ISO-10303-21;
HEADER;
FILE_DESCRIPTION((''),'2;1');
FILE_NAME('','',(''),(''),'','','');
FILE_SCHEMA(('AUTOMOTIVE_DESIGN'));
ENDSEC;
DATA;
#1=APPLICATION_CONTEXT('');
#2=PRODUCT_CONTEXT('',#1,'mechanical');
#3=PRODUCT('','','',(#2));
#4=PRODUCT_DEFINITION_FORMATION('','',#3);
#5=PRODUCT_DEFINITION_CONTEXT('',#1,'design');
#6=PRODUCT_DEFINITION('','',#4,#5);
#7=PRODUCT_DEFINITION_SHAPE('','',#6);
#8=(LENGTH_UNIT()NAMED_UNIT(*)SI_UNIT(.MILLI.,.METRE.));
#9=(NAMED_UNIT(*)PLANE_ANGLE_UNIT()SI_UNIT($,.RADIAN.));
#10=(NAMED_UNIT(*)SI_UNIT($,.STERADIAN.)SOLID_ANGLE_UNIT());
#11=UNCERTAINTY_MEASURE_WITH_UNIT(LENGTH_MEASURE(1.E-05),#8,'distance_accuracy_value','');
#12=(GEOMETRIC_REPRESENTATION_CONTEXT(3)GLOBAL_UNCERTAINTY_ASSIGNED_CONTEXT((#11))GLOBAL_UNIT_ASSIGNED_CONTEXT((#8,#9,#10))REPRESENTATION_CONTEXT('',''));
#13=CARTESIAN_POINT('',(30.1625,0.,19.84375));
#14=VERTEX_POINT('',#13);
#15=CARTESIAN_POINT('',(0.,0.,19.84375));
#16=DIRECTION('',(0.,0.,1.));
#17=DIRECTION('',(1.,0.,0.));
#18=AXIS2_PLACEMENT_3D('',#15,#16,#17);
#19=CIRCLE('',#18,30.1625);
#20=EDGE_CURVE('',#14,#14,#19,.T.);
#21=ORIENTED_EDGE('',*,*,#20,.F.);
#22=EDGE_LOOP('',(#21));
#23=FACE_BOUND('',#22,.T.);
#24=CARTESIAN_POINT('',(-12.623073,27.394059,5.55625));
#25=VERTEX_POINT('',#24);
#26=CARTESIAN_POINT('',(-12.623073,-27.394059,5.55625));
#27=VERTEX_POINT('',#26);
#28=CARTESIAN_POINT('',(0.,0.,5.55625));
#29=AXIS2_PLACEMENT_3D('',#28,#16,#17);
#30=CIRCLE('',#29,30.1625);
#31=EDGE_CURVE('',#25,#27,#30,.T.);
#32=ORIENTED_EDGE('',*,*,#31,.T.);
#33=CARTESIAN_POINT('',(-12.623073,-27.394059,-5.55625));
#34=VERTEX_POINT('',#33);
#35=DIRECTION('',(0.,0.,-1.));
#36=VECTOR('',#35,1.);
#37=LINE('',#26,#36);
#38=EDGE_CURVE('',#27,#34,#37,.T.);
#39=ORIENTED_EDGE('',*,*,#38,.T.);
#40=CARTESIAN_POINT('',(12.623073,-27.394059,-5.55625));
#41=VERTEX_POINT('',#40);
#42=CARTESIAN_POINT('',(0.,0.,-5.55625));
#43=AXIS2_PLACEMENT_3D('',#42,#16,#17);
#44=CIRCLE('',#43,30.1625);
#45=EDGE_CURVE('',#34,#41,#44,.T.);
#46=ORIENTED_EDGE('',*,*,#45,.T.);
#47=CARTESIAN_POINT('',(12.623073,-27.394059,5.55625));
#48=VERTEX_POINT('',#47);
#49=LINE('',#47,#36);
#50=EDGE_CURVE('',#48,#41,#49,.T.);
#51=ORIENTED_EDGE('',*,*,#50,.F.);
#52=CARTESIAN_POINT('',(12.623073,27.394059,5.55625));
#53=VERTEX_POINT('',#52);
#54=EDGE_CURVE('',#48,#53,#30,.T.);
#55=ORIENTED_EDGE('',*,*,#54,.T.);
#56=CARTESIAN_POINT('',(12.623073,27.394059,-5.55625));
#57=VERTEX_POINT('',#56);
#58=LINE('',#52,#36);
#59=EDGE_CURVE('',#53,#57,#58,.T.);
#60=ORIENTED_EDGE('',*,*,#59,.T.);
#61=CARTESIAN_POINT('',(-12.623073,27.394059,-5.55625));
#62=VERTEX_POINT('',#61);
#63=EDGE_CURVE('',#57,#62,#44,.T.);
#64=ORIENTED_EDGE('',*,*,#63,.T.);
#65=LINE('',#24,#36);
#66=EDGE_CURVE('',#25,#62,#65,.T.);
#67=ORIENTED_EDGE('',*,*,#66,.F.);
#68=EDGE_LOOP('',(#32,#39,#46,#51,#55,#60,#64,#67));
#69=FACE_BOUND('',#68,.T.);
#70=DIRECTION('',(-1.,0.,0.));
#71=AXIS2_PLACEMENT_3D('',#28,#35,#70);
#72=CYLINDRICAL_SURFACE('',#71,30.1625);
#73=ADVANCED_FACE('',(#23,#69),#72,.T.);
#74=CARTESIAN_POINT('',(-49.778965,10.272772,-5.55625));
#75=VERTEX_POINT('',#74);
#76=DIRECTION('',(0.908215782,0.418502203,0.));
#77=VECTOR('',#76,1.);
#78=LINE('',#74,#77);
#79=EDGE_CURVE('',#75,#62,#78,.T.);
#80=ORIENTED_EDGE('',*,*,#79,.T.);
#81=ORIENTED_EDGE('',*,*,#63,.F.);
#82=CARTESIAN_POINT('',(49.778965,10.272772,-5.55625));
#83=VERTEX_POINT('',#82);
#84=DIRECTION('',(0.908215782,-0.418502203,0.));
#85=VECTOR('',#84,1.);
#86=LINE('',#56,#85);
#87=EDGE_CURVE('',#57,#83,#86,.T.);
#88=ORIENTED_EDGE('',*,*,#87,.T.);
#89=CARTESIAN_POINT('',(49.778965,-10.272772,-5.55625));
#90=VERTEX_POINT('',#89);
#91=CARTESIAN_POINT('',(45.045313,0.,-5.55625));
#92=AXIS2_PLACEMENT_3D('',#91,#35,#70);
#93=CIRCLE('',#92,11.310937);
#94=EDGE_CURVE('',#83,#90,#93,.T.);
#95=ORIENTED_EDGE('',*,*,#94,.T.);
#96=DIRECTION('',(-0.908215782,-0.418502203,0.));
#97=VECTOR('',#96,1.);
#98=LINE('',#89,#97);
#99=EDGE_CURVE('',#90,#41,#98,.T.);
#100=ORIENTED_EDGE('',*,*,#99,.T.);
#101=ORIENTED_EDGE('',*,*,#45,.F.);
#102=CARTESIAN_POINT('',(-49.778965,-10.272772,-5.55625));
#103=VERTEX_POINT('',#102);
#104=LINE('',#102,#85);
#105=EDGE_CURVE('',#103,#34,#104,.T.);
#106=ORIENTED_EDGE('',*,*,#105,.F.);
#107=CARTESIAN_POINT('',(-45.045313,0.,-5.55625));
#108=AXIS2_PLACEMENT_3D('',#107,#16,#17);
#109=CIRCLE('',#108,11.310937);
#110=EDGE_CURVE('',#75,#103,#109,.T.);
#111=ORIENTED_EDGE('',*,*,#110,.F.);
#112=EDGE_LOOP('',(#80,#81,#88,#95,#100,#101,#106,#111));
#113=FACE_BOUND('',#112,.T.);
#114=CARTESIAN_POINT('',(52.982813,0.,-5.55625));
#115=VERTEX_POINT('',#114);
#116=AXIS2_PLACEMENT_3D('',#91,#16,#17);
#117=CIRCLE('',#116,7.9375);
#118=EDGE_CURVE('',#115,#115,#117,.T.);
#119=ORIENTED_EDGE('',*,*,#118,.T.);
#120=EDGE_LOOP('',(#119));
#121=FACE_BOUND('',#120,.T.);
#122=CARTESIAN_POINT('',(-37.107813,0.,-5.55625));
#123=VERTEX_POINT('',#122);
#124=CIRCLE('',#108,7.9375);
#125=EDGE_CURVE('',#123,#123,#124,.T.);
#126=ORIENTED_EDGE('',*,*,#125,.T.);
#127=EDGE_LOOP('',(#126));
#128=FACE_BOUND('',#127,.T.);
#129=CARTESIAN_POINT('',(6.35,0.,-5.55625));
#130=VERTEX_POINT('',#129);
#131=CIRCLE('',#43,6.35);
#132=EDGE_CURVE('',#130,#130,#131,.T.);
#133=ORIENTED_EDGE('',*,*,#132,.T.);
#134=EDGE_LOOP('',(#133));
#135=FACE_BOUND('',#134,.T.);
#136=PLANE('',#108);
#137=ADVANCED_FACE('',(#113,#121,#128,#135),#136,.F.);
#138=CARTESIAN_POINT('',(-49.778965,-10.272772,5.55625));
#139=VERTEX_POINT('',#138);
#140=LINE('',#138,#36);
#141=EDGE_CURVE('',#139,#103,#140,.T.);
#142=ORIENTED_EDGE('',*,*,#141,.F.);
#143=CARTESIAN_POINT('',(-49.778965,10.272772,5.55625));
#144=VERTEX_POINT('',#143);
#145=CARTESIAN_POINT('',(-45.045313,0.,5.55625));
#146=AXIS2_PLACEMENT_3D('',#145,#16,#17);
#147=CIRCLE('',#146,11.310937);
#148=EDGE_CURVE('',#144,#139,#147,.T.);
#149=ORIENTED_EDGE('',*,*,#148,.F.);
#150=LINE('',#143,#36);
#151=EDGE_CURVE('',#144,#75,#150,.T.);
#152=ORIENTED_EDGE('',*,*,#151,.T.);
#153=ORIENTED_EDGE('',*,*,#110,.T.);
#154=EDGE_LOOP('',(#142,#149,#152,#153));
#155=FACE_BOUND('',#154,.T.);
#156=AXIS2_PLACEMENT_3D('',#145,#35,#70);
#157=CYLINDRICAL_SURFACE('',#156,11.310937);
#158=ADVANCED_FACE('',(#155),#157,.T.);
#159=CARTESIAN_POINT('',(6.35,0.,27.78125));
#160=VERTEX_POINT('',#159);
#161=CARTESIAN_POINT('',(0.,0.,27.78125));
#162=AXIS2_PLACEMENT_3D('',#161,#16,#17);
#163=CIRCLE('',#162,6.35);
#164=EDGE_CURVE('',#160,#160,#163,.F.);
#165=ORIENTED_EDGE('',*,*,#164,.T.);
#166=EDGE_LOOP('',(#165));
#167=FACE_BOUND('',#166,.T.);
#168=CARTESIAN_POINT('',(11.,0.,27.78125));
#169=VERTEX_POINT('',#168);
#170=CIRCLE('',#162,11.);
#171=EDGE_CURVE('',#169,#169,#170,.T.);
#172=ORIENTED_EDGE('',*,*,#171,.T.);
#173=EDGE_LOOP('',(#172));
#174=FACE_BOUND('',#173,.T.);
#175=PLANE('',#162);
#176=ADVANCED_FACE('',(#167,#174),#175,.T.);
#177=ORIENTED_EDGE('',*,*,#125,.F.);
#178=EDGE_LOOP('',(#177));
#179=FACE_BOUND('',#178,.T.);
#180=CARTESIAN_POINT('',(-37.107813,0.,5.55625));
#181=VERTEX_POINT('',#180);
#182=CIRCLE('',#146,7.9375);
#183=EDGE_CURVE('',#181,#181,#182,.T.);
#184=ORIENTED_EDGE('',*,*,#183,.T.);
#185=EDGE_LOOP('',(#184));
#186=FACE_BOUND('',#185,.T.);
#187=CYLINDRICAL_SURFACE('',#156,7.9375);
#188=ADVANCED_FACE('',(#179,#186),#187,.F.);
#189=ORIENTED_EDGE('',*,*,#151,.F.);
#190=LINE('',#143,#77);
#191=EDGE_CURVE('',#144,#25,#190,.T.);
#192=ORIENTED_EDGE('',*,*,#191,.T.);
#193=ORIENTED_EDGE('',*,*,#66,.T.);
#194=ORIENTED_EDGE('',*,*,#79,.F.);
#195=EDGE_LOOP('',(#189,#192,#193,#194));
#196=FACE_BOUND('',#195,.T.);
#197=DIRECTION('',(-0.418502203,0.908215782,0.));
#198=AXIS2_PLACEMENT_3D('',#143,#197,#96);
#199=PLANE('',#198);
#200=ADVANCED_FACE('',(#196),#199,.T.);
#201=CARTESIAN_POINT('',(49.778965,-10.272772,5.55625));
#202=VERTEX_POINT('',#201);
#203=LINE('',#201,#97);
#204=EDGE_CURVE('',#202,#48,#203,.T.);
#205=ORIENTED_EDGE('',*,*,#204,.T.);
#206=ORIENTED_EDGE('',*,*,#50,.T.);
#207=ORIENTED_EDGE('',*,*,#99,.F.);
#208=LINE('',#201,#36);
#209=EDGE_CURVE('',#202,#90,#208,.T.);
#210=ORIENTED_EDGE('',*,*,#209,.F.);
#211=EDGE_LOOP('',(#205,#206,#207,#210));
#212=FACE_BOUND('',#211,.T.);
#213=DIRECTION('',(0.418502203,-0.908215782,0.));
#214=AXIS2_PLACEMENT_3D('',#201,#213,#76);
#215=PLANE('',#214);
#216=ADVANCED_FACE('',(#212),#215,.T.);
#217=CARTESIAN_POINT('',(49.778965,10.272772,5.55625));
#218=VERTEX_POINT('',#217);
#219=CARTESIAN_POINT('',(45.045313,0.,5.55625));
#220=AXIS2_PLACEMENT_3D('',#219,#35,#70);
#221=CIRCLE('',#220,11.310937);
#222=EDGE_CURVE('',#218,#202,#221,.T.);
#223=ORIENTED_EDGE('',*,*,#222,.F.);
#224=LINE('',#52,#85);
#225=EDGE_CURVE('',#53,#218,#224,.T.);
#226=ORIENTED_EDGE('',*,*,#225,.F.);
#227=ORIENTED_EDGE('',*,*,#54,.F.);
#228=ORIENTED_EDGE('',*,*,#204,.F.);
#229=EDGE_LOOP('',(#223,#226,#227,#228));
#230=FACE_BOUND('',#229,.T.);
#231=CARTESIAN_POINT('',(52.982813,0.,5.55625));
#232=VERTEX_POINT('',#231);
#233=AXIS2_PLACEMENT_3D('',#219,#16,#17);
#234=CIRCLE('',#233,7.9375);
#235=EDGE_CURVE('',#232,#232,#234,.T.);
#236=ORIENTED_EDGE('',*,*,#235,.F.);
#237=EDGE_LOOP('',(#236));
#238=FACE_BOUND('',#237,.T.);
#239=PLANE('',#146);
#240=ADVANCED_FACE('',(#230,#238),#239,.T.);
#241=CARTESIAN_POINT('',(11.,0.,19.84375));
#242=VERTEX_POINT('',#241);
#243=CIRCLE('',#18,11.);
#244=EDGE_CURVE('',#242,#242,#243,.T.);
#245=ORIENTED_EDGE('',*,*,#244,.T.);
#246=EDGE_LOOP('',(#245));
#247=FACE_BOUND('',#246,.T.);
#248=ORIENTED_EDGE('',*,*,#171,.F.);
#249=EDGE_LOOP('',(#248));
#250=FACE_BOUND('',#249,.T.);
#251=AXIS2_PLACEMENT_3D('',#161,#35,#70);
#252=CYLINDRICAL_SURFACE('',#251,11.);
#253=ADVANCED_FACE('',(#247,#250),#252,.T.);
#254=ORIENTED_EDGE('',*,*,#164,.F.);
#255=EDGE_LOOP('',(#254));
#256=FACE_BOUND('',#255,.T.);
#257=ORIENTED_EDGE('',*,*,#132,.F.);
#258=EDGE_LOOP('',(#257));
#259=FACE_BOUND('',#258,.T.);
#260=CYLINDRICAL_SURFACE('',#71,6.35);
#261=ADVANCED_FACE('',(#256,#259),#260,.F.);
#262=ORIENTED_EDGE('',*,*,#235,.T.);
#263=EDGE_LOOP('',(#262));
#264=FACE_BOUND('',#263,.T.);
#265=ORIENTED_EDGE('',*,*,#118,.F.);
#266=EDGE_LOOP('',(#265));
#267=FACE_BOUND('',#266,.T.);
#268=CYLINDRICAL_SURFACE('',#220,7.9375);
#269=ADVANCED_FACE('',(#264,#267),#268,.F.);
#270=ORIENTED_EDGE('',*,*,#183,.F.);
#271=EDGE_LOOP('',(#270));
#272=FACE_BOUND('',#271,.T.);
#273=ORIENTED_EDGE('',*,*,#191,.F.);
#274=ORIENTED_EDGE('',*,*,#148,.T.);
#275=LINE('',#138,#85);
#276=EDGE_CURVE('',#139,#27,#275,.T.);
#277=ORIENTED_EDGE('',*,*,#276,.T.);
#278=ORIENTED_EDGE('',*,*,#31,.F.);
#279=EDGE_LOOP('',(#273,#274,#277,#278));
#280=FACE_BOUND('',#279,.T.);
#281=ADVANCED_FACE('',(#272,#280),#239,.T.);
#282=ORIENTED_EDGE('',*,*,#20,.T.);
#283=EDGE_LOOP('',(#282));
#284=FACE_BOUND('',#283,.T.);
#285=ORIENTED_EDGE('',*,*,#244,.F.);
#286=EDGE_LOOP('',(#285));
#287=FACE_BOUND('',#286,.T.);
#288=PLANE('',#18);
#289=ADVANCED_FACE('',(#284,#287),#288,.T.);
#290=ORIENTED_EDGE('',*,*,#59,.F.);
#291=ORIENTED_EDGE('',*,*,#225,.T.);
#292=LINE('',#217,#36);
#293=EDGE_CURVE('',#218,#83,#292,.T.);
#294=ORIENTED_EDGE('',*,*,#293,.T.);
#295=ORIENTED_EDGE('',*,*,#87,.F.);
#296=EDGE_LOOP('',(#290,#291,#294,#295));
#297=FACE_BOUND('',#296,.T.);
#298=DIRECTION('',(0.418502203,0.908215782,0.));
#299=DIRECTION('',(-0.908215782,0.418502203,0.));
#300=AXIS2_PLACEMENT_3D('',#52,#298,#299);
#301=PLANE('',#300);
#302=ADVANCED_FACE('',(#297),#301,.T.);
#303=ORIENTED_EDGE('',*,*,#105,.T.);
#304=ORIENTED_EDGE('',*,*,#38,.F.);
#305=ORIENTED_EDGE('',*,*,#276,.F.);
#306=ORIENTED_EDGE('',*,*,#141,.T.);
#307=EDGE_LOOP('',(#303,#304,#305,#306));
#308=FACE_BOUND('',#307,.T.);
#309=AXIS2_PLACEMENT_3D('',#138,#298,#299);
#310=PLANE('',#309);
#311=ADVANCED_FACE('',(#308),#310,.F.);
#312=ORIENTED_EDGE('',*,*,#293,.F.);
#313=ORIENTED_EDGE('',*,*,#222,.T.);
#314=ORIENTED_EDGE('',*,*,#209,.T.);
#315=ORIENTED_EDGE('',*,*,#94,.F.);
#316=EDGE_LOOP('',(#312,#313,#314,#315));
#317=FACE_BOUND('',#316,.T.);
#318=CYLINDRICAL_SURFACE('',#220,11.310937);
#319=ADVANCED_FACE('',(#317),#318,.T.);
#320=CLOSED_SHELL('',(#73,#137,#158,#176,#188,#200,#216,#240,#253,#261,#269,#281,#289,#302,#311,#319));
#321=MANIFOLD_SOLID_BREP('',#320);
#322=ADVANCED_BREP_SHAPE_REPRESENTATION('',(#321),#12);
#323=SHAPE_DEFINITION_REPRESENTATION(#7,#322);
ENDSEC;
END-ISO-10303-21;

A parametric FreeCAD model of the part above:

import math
import FreeCAD as App
import Part
import Sketcher
Q = App.Units.Quantity

doc = App.newDocument("Part")
body = doc.addObject("PartDesign::Body", "Body")

sketch1 = body.newObject("Sketcher::SketchObject", "Sketch")
sketch1.AttachmentSupport = (doc.getObject("XY_Plane"), [""])
sketch1.MapMode = "FlatFace"
sketch1.addGeometry(Part.LineSegment(App.Vector(-13, 27, 0), App.Vector(-50, 10, 0)), False)
sketch1.addGeometry(Part.ArcOfCircle(Part.Circle(App.Vector(-45, 0, 0), App.Vector(0, 0, 1), 11), math.radians(115), math.radians(245)), False)
sketch1.addGeometry(Part.LineSegment(App.Vector(-50, -10, 0), App.Vector(-13, -27, 0)), False)
sketch1.addGeometry(Part.ArcOfCircle(Part.Circle(App.Vector(0, 0, 0), App.Vector(0, 0, 1), 30), math.radians(-115), math.radians(-65)), False)
sketch1.addGeometry(Part.LineSegment(App.Vector(13, -27, 0), App.Vector(50, -10, 0)), False)
sketch1.addGeometry(Part.ArcOfCircle(Part.Circle(App.Vector(45, 0, 0), App.Vector(0, 0, 1), 11), math.radians(-65), math.radians(65)), False)
sketch1.addGeometry(Part.LineSegment(App.Vector(50, 10, 0), App.Vector(13, 27, 0)), False)
sketch1.addGeometry(Part.ArcOfCircle(Part.Circle(App.Vector(0, 0, 0), App.Vector(0, 0, 1), 30), math.radians(65), math.radians(115)), False)
sketch1.addGeometry(Part.Circle(App.Vector(45, 0, 0), App.Vector(0, 0, 1), 8), False)
sketch1.addGeometry(Part.Circle(App.Vector(0, 0, 0), App.Vector(0, 0, 1), 6), False)
sketch1.addGeometry(Part.Circle(App.Vector(-45, 0, 0), App.Vector(0, 0, 1), 8), False)
sketch1.addConstraint(Sketcher.Constraint("Tangent", 0, 2, 1, 1))
sketch1.addConstraint(Sketcher.Constraint("Tangent", 1, 2, 2, 1))
sketch1.addConstraint(Sketcher.Constraint("Tangent", 2, 2, 3, 1))
sketch1.addConstraint(Sketcher.Constraint("Tangent", 3, 2, 4, 1))
sketch1.addConstraint(Sketcher.Constraint("Tangent", 4, 2, 5, 1))
sketch1.addConstraint(Sketcher.Constraint("Tangent", 5, 2, 6, 1))
sketch1.addConstraint(Sketcher.Constraint("Tangent", 6, 2, 7, 1))
sketch1.addConstraint(Sketcher.Constraint("Tangent", 7, 2, 0, 1))
sketch1.addConstraint(Sketcher.Constraint("Coincident", 3, 3, -1, 1))
sketch1.addConstraint(Sketcher.Constraint("Coincident", 7, 3, -1, 1))
sketch1.addConstraint(Sketcher.Constraint("Coincident", 9, 3, -1, 1))
sketch1.addConstraint(Sketcher.Constraint("Coincident", 8, 3, 5, 3))
sketch1.addConstraint(Sketcher.Constraint("Coincident", 10, 3, 1, 3))
sketch1.addConstraint(Sketcher.Constraint("Equal", 1, 5))
sketch1.addConstraint(Sketcher.Constraint("Equal", 3, 7))
sketch1.addConstraint(Sketcher.Constraint("Equal", 8, 10))
sketch1.addConstraint(Sketcher.Constraint("Symmetric", 1, 3, 5, 3, -1, 1))
sketch1.addConstraint(Sketcher.Constraint("PointOnObject", 1, 3, -1))
sketch1.addConstraint(Sketcher.Constraint("Diameter", 9, Q("0.5 in")))
sketch1.addConstraint(Sketcher.Constraint("Diameter", 8, Q("0.625 in")))
sketch1.addConstraint(Sketcher.Constraint("Radius", 3, Q("1.1875 in")))
sketch1.addConstraint(Sketcher.Constraint("DistanceX", 1, 3, 5, 3, Q("3.546875 in")))
sketch1.addConstraint(Sketcher.Constraint("Radius", 1, 11.310937))
pad1 = body.newObject("PartDesign::Pad", "Pad")
pad1.Profile = sketch1
pad1.Length = Q("0.4375 in")
pad1.Midplane = True

sketch2 = body.newObject("Sketcher::SketchObject", "Sketch001")
sketch2.AttachmentSupport = (doc.getObject("XY_Plane"), [""])
sketch2.MapMode = "FlatFace"
sketch2.AttachmentOffset = App.Placement(App.Vector(0, 0, 0.78125 * 25.4), App.Rotation())
sketch2.addGeometry(Part.Circle(App.Vector(0, 0, 0), App.Vector(0, 0, 1), 30), False)
sketch2.addGeometry(Part.Circle(App.Vector(0, 0, 0), App.Vector(0, 0, 1), 6), False)
sketch2.addConstraint(Sketcher.Constraint("Coincident", 0, 3, -1, 1))
sketch2.addConstraint(Sketcher.Constraint("Coincident", 1, 3, -1, 1))
sketch2.addConstraint(Sketcher.Constraint("Diameter", 1, Q("0.5 in")))
sketch2.addConstraint(Sketcher.Constraint("Diameter", 0, Q("2.375 in")))
pad2 = body.newObject("PartDesign::Pad", "Pad001")
pad2.Profile = sketch2
pad2.Length = Q("0.5625 in")
pad2.Reversed = True

sketch3 = body.newObject("Sketcher::SketchObject", "Sketch002")
sketch3.AttachmentSupport = (doc.getObject("XY_Plane"), [""])
sketch3.MapMode = "FlatFace"
sketch3.AttachmentOffset = App.Placement(App.Vector(0, 0, 0.78125 * 25.4), App.Rotation())
sketch3.addGeometry(Part.Circle(App.Vector(0, 0, 0), App.Vector(0, 0, 1), 11), False)
sketch3.addGeometry(Part.Circle(App.Vector(0, 0, 0), App.Vector(0, 0, 1), 6), False)
sketch3.addConstraint(Sketcher.Constraint("Coincident", 0, 3, -1, 1))
sketch3.addConstraint(Sketcher.Constraint("Coincident", 1, 3, -1, 1))
sketch3.addConstraint(Sketcher.Constraint("Diameter", 1, Q("0.5 in")))
sketch3.addConstraint(Sketcher.Constraint("Diameter", 0, 22.0))
pad3 = body.newObject("PartDesign::Pad", "Pad002")
pad3.Profile = sketch3
pad3.Length = Q("0.3125 in")

doc.recompute()
